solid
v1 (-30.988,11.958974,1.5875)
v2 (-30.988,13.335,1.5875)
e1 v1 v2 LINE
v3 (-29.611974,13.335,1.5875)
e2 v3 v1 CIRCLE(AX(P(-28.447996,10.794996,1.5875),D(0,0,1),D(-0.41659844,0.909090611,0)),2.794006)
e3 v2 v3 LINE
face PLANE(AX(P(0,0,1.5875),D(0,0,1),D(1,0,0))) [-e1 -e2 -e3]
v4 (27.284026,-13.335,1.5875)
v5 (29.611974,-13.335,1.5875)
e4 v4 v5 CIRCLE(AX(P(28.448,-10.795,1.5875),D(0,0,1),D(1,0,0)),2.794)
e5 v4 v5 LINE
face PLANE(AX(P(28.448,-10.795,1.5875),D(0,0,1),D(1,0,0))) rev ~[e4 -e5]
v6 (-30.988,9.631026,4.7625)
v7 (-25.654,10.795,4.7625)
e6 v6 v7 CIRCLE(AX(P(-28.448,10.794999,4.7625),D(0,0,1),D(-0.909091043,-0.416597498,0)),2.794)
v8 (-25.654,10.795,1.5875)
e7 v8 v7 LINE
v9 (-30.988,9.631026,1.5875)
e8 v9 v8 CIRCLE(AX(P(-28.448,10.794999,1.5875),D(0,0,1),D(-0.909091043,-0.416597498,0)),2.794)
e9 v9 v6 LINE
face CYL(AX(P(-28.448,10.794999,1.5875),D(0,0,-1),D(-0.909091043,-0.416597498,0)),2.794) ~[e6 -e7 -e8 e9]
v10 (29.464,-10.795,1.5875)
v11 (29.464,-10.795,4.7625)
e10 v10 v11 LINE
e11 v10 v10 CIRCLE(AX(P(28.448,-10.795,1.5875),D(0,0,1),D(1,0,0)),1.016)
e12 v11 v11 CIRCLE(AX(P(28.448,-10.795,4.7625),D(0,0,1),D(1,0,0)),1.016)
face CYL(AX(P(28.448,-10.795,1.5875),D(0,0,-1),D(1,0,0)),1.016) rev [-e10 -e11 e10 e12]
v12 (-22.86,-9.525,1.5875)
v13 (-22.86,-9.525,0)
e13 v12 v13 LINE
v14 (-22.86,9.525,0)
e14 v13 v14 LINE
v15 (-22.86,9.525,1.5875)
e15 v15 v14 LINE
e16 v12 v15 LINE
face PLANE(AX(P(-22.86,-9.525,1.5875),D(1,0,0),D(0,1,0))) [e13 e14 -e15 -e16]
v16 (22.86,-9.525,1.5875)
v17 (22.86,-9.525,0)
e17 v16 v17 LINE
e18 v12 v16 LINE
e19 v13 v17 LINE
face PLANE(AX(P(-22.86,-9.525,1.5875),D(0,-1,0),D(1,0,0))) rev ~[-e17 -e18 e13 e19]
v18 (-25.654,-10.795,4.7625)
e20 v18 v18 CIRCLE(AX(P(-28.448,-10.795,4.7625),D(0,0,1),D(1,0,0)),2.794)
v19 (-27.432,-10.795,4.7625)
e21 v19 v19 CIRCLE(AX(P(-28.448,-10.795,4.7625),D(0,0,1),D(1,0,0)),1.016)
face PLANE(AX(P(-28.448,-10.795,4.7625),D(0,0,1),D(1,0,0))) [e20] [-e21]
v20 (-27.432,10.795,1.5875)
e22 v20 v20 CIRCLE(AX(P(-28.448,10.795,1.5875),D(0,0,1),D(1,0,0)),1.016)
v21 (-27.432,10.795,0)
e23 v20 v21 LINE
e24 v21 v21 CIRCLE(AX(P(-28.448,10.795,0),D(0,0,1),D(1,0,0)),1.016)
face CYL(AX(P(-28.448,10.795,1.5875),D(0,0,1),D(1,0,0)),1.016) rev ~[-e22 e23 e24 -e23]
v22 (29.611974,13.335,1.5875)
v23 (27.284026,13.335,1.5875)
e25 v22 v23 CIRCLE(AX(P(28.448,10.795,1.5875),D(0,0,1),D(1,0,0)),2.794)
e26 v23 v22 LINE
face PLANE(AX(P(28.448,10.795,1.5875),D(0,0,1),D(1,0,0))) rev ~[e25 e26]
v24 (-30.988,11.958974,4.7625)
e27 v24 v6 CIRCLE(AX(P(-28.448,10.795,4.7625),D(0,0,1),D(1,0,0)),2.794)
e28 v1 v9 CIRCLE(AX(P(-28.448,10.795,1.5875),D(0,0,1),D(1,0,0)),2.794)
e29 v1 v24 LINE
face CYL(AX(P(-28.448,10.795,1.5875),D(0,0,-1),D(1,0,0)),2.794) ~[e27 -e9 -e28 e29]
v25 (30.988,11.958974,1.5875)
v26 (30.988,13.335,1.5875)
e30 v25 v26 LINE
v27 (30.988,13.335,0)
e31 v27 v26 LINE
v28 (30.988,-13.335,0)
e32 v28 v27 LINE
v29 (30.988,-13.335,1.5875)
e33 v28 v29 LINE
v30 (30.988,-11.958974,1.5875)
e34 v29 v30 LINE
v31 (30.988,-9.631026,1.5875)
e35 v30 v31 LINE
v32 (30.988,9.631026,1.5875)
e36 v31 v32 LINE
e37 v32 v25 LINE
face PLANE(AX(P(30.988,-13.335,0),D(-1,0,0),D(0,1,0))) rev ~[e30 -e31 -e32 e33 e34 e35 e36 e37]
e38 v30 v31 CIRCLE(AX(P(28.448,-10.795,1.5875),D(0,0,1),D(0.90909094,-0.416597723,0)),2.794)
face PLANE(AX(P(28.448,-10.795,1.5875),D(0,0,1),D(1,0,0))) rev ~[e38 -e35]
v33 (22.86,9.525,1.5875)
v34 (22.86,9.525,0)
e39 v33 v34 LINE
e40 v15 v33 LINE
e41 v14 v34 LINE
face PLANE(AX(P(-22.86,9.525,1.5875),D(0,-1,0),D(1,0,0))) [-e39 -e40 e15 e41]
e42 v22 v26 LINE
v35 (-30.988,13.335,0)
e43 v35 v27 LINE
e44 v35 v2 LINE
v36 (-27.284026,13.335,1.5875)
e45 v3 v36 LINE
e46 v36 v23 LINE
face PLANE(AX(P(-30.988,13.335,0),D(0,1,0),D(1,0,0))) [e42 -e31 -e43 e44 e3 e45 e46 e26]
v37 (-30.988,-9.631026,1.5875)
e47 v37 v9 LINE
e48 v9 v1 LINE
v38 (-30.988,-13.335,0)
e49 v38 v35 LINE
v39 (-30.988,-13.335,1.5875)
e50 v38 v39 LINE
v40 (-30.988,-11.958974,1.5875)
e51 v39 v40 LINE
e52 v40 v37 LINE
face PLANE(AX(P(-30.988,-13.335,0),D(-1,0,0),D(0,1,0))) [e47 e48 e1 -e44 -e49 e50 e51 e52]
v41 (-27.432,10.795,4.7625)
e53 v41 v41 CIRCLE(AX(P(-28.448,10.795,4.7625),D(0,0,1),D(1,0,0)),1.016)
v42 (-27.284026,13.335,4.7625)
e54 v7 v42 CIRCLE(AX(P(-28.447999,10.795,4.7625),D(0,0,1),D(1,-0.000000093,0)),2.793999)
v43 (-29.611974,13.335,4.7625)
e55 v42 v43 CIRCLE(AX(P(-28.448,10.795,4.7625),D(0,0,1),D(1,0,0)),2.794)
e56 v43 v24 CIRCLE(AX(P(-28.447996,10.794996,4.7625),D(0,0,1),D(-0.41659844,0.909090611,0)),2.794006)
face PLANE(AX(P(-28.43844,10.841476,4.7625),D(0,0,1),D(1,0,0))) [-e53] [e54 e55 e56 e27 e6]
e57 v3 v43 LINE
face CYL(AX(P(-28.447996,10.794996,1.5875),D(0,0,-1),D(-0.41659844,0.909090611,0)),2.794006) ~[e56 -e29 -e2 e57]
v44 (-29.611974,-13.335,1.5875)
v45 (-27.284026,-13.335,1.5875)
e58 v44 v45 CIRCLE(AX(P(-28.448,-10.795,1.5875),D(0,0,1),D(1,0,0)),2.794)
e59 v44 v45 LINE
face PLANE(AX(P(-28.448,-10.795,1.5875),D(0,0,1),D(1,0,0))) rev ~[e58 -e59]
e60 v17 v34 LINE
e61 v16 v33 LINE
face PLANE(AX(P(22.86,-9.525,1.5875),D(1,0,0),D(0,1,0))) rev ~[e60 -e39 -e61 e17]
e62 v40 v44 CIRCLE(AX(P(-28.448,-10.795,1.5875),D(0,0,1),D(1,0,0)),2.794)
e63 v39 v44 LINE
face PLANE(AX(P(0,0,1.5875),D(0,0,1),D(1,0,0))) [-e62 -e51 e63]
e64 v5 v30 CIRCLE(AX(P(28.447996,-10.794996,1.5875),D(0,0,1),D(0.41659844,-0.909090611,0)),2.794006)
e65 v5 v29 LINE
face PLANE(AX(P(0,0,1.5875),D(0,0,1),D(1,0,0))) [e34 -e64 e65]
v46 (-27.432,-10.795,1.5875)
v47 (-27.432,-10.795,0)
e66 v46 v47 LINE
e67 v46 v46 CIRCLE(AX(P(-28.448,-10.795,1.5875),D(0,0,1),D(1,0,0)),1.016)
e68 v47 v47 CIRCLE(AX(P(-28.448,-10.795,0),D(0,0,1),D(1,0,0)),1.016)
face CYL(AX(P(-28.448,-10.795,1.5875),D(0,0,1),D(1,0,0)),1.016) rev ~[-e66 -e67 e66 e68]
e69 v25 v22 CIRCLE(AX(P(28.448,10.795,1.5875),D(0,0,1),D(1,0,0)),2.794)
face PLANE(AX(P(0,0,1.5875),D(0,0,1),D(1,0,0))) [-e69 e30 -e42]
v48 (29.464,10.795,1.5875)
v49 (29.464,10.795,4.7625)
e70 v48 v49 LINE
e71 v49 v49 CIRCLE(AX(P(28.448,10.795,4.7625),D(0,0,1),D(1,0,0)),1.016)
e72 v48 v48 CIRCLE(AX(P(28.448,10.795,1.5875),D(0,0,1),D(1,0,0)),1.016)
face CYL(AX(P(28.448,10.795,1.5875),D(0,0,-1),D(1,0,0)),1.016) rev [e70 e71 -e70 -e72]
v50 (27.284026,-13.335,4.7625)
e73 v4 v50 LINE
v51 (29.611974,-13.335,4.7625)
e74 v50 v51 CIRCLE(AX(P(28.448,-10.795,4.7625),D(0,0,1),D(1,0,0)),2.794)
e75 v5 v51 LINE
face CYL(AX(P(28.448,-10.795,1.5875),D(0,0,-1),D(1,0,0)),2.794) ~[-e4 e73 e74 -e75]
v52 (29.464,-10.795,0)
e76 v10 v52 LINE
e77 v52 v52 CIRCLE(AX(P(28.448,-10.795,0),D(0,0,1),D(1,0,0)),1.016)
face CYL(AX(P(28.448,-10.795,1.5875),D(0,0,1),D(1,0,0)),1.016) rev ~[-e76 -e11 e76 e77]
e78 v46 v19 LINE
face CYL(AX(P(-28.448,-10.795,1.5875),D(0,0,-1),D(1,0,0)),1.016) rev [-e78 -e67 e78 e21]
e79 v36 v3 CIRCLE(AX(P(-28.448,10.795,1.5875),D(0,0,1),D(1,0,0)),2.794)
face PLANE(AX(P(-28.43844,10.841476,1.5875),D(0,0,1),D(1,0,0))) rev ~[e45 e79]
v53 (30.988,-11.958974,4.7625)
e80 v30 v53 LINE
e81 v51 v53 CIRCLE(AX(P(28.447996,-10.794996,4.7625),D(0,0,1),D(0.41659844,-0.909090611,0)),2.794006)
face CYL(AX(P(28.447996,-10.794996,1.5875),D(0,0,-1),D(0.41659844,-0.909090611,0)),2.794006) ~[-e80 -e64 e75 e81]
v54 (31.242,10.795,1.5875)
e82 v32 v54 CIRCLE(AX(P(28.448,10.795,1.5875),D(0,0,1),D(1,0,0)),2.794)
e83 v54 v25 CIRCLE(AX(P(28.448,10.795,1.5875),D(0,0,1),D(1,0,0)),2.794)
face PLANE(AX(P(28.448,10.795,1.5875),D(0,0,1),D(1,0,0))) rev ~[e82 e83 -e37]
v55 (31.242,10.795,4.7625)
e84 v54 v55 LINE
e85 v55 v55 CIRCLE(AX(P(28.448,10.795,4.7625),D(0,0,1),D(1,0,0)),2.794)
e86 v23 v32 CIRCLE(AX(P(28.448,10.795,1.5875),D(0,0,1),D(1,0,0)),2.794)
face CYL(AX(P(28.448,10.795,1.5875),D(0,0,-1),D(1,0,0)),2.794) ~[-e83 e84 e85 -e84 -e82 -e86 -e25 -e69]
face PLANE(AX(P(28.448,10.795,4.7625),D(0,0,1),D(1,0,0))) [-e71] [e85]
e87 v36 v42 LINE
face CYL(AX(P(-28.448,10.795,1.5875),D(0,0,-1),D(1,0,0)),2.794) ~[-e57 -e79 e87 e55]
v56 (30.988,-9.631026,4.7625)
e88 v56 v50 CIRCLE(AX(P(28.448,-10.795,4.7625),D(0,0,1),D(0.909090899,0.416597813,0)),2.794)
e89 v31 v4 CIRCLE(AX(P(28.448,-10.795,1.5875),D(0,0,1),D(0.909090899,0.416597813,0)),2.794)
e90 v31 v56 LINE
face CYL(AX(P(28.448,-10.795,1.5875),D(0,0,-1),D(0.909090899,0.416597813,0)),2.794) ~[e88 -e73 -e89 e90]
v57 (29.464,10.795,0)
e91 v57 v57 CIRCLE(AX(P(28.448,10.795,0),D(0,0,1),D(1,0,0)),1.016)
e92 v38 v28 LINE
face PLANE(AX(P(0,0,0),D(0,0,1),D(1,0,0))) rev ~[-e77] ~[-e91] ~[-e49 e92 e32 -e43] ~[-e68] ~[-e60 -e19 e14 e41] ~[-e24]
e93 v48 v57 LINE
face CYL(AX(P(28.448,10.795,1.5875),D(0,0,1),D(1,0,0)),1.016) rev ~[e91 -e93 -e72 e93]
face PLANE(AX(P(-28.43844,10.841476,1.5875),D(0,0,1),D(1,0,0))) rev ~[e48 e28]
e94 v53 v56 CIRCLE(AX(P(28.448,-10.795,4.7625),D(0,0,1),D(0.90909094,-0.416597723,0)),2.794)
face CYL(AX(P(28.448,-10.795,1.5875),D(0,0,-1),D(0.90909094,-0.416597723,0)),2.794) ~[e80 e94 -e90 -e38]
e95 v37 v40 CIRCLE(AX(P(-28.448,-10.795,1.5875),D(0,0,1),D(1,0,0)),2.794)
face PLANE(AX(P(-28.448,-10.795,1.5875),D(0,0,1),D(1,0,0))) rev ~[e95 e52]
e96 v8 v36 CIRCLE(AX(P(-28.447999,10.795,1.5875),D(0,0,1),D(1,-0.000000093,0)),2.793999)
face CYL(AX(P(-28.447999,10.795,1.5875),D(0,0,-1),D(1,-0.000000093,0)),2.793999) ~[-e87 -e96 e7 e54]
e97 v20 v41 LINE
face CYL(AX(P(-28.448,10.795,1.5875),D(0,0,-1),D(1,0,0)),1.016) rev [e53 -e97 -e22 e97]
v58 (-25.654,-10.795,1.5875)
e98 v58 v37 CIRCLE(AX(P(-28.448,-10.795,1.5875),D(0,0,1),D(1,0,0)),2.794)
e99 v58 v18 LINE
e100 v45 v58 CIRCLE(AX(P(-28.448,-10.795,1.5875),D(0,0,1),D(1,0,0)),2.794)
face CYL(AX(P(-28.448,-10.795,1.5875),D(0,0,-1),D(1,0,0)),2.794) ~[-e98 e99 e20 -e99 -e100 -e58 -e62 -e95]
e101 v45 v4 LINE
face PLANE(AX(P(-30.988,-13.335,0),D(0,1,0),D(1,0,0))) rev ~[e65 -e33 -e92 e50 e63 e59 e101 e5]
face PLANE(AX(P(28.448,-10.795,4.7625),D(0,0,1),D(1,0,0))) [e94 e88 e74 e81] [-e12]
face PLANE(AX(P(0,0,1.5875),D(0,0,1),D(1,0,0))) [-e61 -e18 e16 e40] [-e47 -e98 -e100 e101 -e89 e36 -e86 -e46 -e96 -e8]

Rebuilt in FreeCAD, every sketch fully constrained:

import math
import FreeCAD as App
import Part
import Sketcher
Q = App.Units.Quantity

doc = App.newDocument("Part")
params = doc.addObject("Spreadsheet::Sheet", "Params")
for row, (alias, value) in enumerate([
    ("sketch1_width", "2.44 in"),
    ("sketch1_height", "1.05 in"),
    ("pad1_length", "0.0625 in"),
    ("sketch2_diameter", "0.08 in"),
    ("sketch2_diameter2", "0.22 in"),
    ("sketch2_height", "0.1 in"),
    ("sketch2_height2", "0.1 in"),
    ("pad2_length", "0.125 in"),
    ("sketch3_diameter", "0.08 in"),
    ("pocket1_length", "0.5 in"),
    ("sketch4_width", "1.8 in"),
    ("sketch4_height", "0.75 in"),
    ("pocket2_length", "0.25 in"),
], start=1):
    params.set(f"A{row}", alias)
    params.set(f"B{row}", "=" + value)
    params.setAlias(f"B{row}", alias)

body = doc.addObject("PartDesign::Body", "Body")

# Sketch on XY plane
sketch1 = doc.addObject("Sketcher::SketchObject", "Sketch")
body.addObject(sketch1)
sketch1.AttachmentSupport = (doc.XY_Plane, [""])
sketch1.MapMode = "FlatFace"
sketch1.addGeometry([
    Part.LineSegment(App.Vector(-31, 13, 0), App.Vector(-31, -13, 0)),
    Part.LineSegment(App.Vector(-31, -13, 0), App.Vector(31, -13, 0)),
    Part.LineSegment(App.Vector(31, -13, 0), App.Vector(31, 13, 0)),
    Part.LineSegment(App.Vector(31, 13, 0), App.Vector(-31, 13, 0)),
], False)
sketch1.addConstraint([
    Sketcher.Constraint("Coincident", 0, 2, 1, 1),
    Sketcher.Constraint("Coincident", 1, 2, 2, 1),
    Sketcher.Constraint("Coincident", 2, 2, 3, 1),
    Sketcher.Constraint("Coincident", 3, 2, 0, 1),
    Sketcher.Constraint("Vertical", 0),
    Sketcher.Constraint("Horizontal", 1),
    Sketcher.Constraint("Vertical", 2),
    Sketcher.Constraint("Horizontal", 3),
    Sketcher.Constraint("Symmetric", 0, 2, 2, 2, -1, 1),
    Sketcher.Constraint("DistanceX", 1, 1, 1, 2, Q("2.44 in")),
    Sketcher.Constraint("DistanceY", 0, 2, 0, 1, Q("1.05 in")),
])
sketch1.setExpression("Constraints[9]", "Params.sketch1_width")
sketch1.setExpression("Constraints[10]", "Params.sketch1_height")
pad1 = doc.addObject("PartDesign::Pad", "Pad")
body.addObject(pad1)
pad1.Profile = sketch1
pad1.setExpression("Length", "Params.pad1_length")

# Sketch on XY plane
sketch2 = doc.addObject("Sketcher::SketchObject", "Sketch001")
body.addObject(sketch2)
sketch2.AttachmentSupport = (doc.XY_Plane, [""])
sketch2.MapMode = "FlatFace"
sketch2.AttachmentOffset = App.Placement(App.Vector(0, 0, 0.0625 * 25.4), App.Rotation())
sketch2.addGeometry([
    Part.ArcOfCircle(Part.Circle(App.Vector(-28.4, 10.8, 0), App.Vector(0, 0, 1), 2.8), math.radians(0), math.radians(65)),  # 0
    Part.ArcOfCircle(Part.Circle(App.Vector(-28.4, 10.8, 0), App.Vector(0, 0, 1), 2.8), math.radians(65), math.radians(115)),  # 1
    Part.ArcOfCircle(Part.Circle(App.Vector(-28.4, 10.8, 0), App.Vector(0, 0, 1), 2.8), math.radians(115), math.radians(155)),  # 2
    Part.ArcOfCircle(Part.Circle(App.Vector(-28.4, 10.8, 0), App.Vector(0, 0, 1), 2.8), math.radians(155), math.radians(205)),  # 3
    Part.ArcOfCircle(Part.Circle(App.Vector(-28.4, 10.8, 0), App.Vector(0, 0, 1), 2.8), math.radians(-155), math.radians(0)),  # 4
    Part.Circle(App.Vector(-28.4, 10.8, 0), App.Vector(0, 0, 1), 1),  # 5
    Part.ArcOfCircle(Part.Circle(App.Vector(28.4, -10.8, 0), App.Vector(0, 0, 1), 2.8), math.radians(-25), math.radians(25)),  # 6
    Part.ArcOfCircle(Part.Circle(App.Vector(28.4, -10.8, 0), App.Vector(0, 0, 1), 2.8), math.radians(25), math.radians(245)),  # 7
    Part.ArcOfCircle(Part.Circle(App.Vector(28.4, -10.8, 0), App.Vector(0, 0, 1), 2.8), math.radians(-115), math.radians(-65)),  # 8
    Part.ArcOfCircle(Part.Circle(App.Vector(28.4, -10.8, 0), App.Vector(0, 0, 1), 2.8), math.radians(-65), math.radians(-25)),  # 9
    Part.Circle(App.Vector(28.4, -10.8, 0), App.Vector(0, 0, 1), 1),  # 10
    Part.Circle(App.Vector(-28.4, -10.8, 0), App.Vector(0, 0, 1), 2.8),  # 11
    Part.Circle(App.Vector(-28.4, -10.8, 0), App.Vector(0, 0, 1), 1),  # 12
    Part.Circle(App.Vector(28.4, 10.8, 0), App.Vector(0, 0, 1), 2.8),  # 13
    Part.Circle(App.Vector(28.4, 10.8, 0), App.Vector(0, 0, 1), 1),  # 14
], False)
sketch2.addConstraint([
    Sketcher.Constraint("Tangent", 0, 2, 1, 1),
    Sketcher.Constraint("Tangent", 1, 2, 2, 1),
    Sketcher.Constraint("Tangent", 2, 2, 3, 1),
    Sketcher.Constraint("Tangent", 3, 2, 4, 1),
    Sketcher.Constraint("Tangent", 4, 2, 0, 1),
    Sketcher.Constraint("Tangent", 6, 2, 7, 1),
    Sketcher.Constraint("Tangent", 7, 2, 8, 1),
    Sketcher.Constraint("Tangent", 8, 2, 9, 1),
    Sketcher.Constraint("Tangent", 9, 2, 6, 1),
    Sketcher.Constraint("Coincident", 2, 3, 0, 3),
    Sketcher.Constraint("Coincident", 5, 3, 0, 3),
    Sketcher.Constraint("Coincident", 10, 3, 6, 3),
    Sketcher.Constraint("Coincident", 12, 3, 11, 3),
    Sketcher.Constraint("Coincident", 14, 3, 13, 3),
    Sketcher.Constraint("Equal", 4, 6),
    Sketcher.Constraint("Equal", 6, 7),
    Sketcher.Constraint("Equal", 5, 10),
    Sketcher.Constraint("Equal", 8, 11),
    Sketcher.Constraint("Equal", 10, 12),
    Sketcher.Constraint("Equal", 11, 13),
    Sketcher.Constraint("Equal", 12, 14),
    Sketcher.Constraint("Symmetric", 0, 3, 6, 3, -1, 1),
    Sketcher.Constraint("Symmetric", 11, 3, 13, 3, -1, 1),
    Sketcher.Constraint("Symmetric", 6, 3, 11, 3, -2),
    Sketcher.Constraint("Horizontal", 0, 2, 1, 2),
    Sketcher.Constraint("Horizontal", 14, 3, 4, 2),
    Sketcher.Constraint("Horizontal", 7, 2, 8, 2),
    Sketcher.Constraint("Vertical", 2, 2, 3, 2),
    Sketcher.Constraint("Vertical", 6, 2, 9, 2),
    Sketcher.Constraint("Diameter", 5, Q("0.08 in")),
    Sketcher.Constraint("Diameter", 11, Q("0.22 in")),
    Sketcher.Constraint("DistanceY", 0, 3, 0, 2, Q("0.1 in")),
    Sketcher.Constraint("DistanceX", 2, 2, 1, 3, Q("0.1 in")),
    Sketcher.Constraint("DistanceX", 7, 3, 6, 2, Q("0.1 in")),
    Sketcher.Constraint("DistanceY", 7, 2, 7, 3, Q("0.1 in")),
    Sketcher.Constraint("DistanceX", 0, 3, -1, 1, Q("1.12 in")),
    Sketcher.Constraint("DistanceY", 6, 3, 2, 3, Q("0.8499998 in")),
])
sketch2.setExpression("Constraints[29]", "Params.sketch2_diameter")
sketch2.setExpression("Constraints[30]", "Params.sketch2_diameter2")
sketch2.setExpression("Constraints[31]", "Params.sketch2_height")
sketch2.setExpression("Constraints[34]", "Params.sketch2_height2")
pad2 = doc.addObject("PartDesign::Pad", "Pad001")
body.addObject(pad2)
pad2.Profile = sketch2
pad2.setExpression("Length", "Params.pad2_length")

# Sketch on XY plane
sketch3 = doc.addObject("Sketcher::SketchObject", "Sketch002")
body.addObject(sketch3)
sketch3.AttachmentSupport = (doc.XY_Plane, [""])
sketch3.MapMode = "FlatFace"
sketch3.AttachmentOffset = App.Placement(App.Vector(0, 0, 0.0625 * 25.4), App.Rotation())
sketch3.addGeometry([
    Part.Circle(App.Vector(-28.4, 10.8, 0), App.Vector(0, 0, 1), 1),
    Part.Circle(App.Vector(28.4, -10.8, 0), App.Vector(0, 0, 1), 1),
    Part.Circle(App.Vector(28.4, 10.8, 0), App.Vector(0, 0, 1), 1),
    Part.Circle(App.Vector(-28.4, -10.8, 0), App.Vector(0, 0, 1), 1),
], False)
sketch3.addConstraint([
    Sketcher.Constraint("Equal", 0, 1),
    Sketcher.Constraint("Equal", 1, 2),
    Sketcher.Constraint("Equal", 2, 3),
    Sketcher.Constraint("Symmetric", 0, 3, 1, 3, -1, 1),
    Sketcher.Constraint("Symmetric", 2, 3, 3, 3, -1, 1),
    Sketcher.Constraint("Symmetric", 0, 3, 2, 3, -2),
    Sketcher.Constraint("Diameter", 0, Q("0.08 in")),
    Sketcher.Constraint("DistanceX", 0, 3, -1, 1, Q("1.12 in")),
    Sketcher.Constraint("DistanceY", 1, 3, 0, 3, Q("0.85 in")),
])
sketch3.setExpression("Constraints[6]", "Params.sketch3_diameter")
pocket1 = doc.addObject("PartDesign::Pocket", "Pocket")
body.addObject(pocket1)
pocket1.Profile = sketch3
pocket1.setExpression("Length", "Params.pocket1_length")

# Sketch on XY plane
sketch4 = doc.addObject("Sketcher::SketchObject", "Sketch003")
body.addObject(sketch4)
sketch4.AttachmentSupport = (doc.XY_Plane, [""])
sketch4.MapMode = "FlatFace"
sketch4.AttachmentOffset = App.Placement(App.Vector(0, 0, 0.0625 * 25.4), App.Rotation())
sketch4.addGeometry([
    Part.LineSegment(App.Vector(-23, 10, 0), App.Vector(-23, -10, 0)),
    Part.LineSegment(App.Vector(-23, -10, 0), App.Vector(23, -10, 0)),
    Part.LineSegment(App.Vector(23, -10, 0), App.Vector(23, 10, 0)),
    Part.LineSegment(App.Vector(23, 10, 0), App.Vector(-23, 10, 0)),
], False)
sketch4.addConstraint([
    Sketcher.Constraint("Coincident", 0, 2, 1, 1),
    Sketcher.Constraint("Coincident", 1, 2, 2, 1),
    Sketcher.Constraint("Coincident", 2, 2, 3, 1),
    Sketcher.Constraint("Coincident", 3, 2, 0, 1),
    Sketcher.Constraint("Vertical", 0),
    Sketcher.Constraint("Horizontal", 1),
    Sketcher.Constraint("Vertical", 2),
    Sketcher.Constraint("Horizontal", 3),
    Sketcher.Constraint("Symmetric", 0, 2, 2, 2, -1, 1),
    Sketcher.Constraint("DistanceX", 1, 1, 1, 2, Q("1.8 in")),
    Sketcher.Constraint("DistanceY", 0, 2, 0, 1, Q("0.75 in")),
])
sketch4.setExpression("Constraints[9]", "Params.sketch4_width")
sketch4.setExpression("Constraints[10]", "Params.sketch4_height")
pocket2 = doc.addObject("PartDesign::Pocket", "Pocket001")
body.addObject(pocket2)
pocket2.Profile = sketch4
pocket2.setExpression("Length", "Params.pocket2_length")

doc.recompute()
